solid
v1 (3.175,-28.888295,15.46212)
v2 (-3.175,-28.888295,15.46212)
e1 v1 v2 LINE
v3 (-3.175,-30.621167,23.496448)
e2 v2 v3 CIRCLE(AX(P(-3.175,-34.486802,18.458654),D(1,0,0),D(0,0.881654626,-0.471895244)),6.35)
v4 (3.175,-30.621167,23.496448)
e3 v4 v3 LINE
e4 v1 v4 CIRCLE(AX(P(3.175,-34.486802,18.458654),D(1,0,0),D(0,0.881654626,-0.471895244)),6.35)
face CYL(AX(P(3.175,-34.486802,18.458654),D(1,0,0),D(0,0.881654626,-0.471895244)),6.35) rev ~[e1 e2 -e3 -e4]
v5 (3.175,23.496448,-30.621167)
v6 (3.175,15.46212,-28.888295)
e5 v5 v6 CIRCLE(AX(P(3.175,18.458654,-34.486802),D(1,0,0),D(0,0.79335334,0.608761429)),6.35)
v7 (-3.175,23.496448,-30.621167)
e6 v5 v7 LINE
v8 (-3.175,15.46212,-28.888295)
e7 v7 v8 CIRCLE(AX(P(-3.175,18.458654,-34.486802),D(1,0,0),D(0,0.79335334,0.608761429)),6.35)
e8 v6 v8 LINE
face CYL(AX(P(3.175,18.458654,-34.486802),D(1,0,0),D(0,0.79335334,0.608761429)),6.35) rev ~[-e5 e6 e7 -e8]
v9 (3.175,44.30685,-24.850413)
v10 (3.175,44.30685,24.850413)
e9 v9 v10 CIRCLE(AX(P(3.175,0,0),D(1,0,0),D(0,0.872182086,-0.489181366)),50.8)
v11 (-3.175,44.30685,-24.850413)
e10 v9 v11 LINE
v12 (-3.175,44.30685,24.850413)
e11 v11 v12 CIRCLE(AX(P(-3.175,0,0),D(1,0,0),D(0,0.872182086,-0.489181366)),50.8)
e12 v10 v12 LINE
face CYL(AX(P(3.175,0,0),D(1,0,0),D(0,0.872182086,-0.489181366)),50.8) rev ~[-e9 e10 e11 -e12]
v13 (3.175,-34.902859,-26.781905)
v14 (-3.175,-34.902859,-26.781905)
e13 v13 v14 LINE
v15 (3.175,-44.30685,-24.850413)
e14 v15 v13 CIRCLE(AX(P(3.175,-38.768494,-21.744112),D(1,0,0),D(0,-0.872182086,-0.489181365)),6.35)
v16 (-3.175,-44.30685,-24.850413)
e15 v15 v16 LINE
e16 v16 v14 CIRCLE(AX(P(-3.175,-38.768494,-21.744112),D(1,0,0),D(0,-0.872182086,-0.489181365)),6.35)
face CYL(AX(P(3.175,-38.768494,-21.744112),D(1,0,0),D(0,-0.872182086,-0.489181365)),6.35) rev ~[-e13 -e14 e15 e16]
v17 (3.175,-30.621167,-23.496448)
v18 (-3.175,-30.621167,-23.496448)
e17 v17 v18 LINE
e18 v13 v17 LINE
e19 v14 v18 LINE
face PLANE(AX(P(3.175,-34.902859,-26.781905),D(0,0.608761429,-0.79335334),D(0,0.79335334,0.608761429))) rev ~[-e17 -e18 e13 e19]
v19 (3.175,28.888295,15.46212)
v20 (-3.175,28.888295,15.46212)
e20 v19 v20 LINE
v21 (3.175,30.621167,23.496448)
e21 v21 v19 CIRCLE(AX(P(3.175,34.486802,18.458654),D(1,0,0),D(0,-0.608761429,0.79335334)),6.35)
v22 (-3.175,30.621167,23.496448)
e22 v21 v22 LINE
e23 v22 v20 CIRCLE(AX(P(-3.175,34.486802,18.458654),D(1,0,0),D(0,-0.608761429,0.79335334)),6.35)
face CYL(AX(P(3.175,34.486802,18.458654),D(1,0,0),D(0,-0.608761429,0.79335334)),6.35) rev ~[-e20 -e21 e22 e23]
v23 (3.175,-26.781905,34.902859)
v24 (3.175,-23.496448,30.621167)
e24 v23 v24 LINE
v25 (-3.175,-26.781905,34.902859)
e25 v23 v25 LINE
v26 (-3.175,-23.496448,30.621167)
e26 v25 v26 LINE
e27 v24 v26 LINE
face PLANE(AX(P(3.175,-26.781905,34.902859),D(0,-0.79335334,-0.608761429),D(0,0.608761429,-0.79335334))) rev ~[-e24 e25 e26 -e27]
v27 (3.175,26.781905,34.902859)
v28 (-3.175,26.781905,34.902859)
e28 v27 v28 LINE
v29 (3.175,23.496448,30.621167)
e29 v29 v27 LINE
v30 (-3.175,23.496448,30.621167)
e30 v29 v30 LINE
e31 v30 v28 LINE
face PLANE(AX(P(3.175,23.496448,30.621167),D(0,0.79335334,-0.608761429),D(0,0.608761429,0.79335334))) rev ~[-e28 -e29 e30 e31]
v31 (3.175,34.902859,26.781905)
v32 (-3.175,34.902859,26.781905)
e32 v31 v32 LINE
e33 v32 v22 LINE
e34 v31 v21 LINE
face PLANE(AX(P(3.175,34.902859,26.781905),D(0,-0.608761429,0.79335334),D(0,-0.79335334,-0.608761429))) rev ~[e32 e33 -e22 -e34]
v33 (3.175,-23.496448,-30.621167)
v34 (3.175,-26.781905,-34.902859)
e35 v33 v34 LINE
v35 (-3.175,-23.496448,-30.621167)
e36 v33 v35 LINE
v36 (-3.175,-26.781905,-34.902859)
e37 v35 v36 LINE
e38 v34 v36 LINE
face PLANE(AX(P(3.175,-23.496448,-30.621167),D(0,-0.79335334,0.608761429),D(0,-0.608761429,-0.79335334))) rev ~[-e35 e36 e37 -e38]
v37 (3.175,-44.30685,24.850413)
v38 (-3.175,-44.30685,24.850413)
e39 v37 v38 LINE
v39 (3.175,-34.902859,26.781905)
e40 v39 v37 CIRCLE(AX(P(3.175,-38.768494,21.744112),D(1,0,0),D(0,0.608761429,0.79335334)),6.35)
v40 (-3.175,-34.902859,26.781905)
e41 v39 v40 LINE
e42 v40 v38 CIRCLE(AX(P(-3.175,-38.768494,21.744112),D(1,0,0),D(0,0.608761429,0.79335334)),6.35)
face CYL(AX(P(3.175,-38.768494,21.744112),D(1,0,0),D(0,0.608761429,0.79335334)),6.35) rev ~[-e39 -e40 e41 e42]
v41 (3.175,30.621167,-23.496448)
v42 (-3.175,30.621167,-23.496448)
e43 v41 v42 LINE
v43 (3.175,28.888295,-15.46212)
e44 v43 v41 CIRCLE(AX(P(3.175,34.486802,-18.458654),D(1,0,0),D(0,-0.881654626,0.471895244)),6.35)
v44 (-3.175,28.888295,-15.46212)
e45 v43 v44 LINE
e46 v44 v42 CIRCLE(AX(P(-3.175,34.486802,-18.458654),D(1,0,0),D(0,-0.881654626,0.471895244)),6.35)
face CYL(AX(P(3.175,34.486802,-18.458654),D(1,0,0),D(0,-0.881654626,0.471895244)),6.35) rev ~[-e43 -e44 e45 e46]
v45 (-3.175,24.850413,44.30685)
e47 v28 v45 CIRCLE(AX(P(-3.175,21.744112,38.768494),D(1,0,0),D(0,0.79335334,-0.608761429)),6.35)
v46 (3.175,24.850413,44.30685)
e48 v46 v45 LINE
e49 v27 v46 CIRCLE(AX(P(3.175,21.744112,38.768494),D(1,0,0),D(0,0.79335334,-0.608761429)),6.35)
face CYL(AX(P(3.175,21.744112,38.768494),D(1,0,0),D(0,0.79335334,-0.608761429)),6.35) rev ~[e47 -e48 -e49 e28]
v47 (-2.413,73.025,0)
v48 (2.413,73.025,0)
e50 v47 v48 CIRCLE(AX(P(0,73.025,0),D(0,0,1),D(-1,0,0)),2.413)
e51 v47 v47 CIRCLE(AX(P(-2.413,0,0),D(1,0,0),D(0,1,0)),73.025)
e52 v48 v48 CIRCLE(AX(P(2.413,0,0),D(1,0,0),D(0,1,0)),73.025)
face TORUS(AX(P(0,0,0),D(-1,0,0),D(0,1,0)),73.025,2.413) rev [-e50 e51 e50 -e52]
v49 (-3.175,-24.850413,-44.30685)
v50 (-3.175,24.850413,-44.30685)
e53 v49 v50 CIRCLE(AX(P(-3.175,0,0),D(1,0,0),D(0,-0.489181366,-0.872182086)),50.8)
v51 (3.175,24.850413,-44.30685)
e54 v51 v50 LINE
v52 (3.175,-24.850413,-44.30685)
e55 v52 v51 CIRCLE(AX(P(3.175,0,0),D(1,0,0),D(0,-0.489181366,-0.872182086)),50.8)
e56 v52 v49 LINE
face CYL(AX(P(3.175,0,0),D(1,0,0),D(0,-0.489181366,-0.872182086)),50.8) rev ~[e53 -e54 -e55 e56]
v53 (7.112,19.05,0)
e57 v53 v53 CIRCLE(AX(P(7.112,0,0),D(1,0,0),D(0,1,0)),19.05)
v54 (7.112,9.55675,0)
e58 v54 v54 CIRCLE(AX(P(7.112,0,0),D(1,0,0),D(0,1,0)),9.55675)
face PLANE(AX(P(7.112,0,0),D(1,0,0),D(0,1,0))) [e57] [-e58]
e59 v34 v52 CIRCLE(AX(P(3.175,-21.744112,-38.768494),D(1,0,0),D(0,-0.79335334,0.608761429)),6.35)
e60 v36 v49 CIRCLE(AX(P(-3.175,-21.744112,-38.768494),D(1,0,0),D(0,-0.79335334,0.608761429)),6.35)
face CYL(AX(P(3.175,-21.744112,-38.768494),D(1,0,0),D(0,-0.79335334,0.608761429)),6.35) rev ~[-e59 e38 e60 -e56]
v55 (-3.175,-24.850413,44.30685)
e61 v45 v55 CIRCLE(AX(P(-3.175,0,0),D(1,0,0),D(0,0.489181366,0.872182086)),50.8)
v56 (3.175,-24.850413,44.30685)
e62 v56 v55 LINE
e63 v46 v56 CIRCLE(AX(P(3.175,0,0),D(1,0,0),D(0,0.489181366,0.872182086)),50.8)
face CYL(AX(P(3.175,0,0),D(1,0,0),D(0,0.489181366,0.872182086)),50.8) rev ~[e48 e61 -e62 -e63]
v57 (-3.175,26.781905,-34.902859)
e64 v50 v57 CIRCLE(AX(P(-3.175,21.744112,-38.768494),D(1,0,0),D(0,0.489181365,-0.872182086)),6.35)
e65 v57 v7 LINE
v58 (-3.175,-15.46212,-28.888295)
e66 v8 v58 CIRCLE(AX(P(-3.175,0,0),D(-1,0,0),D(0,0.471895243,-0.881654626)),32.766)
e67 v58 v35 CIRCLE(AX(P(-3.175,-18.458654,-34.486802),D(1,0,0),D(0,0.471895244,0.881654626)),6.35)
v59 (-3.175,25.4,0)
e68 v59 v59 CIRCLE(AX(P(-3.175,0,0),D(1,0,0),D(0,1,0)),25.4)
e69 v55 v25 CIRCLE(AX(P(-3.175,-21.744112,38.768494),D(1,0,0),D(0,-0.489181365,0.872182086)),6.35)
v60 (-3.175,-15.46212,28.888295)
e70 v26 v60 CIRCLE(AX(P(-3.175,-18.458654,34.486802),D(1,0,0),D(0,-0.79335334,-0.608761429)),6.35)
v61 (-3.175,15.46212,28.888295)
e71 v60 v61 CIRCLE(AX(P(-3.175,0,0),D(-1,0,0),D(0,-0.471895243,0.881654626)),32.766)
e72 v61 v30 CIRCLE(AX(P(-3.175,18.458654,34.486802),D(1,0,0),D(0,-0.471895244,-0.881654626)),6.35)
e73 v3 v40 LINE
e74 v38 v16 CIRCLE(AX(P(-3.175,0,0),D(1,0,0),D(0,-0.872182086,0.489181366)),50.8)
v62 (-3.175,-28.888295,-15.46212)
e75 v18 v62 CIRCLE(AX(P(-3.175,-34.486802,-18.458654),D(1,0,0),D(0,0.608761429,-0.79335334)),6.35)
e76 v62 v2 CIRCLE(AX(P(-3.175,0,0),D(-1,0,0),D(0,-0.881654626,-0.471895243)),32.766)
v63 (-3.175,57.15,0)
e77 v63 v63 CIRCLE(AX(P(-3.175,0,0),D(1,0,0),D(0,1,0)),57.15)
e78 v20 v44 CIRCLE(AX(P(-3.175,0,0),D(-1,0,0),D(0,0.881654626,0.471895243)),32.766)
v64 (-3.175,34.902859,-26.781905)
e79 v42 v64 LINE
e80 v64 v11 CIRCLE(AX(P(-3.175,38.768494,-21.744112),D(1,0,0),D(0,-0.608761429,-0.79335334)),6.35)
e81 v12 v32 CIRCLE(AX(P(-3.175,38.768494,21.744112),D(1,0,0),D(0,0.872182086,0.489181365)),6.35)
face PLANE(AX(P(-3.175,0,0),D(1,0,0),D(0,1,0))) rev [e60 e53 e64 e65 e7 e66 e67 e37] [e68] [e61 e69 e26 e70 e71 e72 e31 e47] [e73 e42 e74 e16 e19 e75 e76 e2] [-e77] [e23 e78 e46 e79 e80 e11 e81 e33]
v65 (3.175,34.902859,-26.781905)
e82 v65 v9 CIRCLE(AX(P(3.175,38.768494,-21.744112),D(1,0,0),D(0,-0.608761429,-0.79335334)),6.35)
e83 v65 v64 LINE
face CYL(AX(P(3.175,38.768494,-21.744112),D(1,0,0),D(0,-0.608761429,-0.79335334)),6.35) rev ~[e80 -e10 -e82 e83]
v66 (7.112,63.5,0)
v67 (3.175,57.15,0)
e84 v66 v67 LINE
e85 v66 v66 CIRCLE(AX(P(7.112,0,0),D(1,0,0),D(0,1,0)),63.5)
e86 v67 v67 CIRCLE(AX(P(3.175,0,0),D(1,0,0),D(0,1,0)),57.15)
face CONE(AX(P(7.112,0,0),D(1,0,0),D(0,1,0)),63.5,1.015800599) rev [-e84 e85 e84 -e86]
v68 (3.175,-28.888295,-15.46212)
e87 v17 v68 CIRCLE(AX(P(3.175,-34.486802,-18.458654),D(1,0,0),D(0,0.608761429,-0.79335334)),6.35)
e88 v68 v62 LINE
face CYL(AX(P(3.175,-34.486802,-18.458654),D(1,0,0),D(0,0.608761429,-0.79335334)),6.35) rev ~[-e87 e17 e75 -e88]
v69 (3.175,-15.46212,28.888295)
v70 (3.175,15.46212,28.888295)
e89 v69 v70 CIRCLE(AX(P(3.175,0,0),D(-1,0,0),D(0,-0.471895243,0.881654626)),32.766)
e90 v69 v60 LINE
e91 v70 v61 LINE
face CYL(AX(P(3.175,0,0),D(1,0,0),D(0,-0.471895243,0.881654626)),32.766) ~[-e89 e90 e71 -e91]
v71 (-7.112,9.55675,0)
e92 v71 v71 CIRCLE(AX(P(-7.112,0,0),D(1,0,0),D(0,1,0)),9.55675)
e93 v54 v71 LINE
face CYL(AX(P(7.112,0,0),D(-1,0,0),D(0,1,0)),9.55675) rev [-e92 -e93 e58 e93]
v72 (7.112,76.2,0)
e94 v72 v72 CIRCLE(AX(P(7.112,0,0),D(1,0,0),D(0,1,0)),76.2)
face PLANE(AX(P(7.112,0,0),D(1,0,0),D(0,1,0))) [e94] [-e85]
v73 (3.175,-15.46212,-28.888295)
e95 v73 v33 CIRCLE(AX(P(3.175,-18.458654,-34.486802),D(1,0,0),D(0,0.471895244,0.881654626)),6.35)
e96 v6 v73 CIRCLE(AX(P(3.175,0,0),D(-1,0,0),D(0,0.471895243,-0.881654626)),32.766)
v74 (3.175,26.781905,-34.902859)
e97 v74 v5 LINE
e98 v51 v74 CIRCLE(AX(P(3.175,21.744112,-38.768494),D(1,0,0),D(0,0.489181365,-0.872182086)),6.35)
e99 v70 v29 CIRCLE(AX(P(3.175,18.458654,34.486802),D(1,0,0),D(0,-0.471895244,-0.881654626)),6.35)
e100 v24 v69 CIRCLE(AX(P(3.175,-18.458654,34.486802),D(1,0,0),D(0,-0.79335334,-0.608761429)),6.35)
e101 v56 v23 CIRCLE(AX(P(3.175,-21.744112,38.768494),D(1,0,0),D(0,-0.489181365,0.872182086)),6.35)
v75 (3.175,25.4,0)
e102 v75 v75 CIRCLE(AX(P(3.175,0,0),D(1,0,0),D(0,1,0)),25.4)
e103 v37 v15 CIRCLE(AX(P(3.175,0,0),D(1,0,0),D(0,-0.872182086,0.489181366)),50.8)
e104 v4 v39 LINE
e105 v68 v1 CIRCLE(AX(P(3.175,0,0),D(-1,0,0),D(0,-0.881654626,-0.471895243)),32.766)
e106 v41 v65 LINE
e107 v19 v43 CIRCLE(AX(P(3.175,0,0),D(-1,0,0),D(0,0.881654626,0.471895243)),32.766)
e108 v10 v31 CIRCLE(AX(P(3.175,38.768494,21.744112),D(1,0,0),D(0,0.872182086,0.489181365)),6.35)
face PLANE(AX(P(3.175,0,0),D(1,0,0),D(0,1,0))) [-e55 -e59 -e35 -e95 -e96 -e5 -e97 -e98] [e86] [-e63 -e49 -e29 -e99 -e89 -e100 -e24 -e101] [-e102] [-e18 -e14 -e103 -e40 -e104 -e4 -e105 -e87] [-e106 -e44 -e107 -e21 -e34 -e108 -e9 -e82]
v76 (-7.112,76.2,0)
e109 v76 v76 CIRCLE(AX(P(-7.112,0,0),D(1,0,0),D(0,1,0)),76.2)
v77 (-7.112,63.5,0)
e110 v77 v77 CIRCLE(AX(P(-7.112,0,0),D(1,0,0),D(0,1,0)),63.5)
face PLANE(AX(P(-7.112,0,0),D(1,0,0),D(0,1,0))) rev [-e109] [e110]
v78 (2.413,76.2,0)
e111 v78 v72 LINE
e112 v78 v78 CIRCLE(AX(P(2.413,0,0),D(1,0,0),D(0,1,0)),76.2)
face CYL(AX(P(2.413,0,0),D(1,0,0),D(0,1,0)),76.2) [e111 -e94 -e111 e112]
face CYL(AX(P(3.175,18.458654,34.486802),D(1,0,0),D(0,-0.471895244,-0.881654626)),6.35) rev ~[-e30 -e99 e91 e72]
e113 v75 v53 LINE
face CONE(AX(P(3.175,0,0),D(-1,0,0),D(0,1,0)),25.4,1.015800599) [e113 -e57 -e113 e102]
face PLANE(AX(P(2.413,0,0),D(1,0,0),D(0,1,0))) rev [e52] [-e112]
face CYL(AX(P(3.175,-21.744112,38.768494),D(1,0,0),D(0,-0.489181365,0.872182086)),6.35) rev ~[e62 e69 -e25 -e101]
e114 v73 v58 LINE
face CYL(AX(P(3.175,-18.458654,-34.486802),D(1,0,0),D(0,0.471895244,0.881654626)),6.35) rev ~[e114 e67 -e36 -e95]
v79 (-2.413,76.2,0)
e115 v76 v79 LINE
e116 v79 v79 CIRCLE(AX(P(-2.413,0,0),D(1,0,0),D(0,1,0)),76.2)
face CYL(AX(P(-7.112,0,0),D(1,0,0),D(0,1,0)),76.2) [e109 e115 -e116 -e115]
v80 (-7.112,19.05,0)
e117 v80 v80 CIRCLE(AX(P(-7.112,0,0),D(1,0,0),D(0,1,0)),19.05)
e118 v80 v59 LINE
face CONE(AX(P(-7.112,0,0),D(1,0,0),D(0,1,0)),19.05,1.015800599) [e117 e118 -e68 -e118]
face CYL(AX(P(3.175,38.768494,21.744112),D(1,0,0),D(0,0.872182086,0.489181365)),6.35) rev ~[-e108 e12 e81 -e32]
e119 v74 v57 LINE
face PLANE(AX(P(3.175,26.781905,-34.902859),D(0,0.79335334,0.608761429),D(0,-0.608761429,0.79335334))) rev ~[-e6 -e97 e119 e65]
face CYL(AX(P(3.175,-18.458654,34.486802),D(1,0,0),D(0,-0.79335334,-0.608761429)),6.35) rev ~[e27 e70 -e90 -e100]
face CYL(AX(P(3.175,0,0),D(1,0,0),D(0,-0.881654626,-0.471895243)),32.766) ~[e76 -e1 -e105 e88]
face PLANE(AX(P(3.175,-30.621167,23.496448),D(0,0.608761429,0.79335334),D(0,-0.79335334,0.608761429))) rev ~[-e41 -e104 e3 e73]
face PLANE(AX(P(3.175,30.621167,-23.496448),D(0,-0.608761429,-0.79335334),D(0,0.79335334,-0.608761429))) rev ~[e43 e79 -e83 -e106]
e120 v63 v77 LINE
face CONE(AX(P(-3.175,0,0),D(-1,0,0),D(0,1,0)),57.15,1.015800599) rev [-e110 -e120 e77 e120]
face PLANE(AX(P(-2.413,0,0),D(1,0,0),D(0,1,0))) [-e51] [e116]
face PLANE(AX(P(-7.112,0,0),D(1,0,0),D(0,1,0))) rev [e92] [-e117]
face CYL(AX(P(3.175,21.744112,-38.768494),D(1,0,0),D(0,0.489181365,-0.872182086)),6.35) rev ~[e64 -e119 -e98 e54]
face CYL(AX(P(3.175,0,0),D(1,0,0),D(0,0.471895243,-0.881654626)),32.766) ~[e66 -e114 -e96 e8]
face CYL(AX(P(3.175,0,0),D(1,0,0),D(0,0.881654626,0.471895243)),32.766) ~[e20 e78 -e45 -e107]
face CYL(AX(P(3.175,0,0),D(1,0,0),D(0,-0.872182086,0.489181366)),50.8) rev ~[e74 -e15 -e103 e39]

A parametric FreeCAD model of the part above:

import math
import FreeCAD as App
import Part
import Sketcher

V = App.Vector
Q = App.Units.Quantity

doc = App.newDocument("Part")
body = doc.addObject("PartDesign::Body", "Body")

sketch1 = body.newObject("Sketcher::SketchObject", "Sketch")
sketch1.AttachmentSupport = (doc.getObject("XY_Plane"), [""])
sketch1.MapMode = "FlatFace"
sketch1.addGeometry([
    Part.LineSegment(V(-3.2, 25.4, 0), V(-7.1, 19.1, 0)),
    Part.LineSegment(V(-7.1, 19.1, 0), V(-7.1, 9.6, 0)),
    Part.LineSegment(V(-7.1, 9.6, 0), V(7.1, 9.6, 0)),
    Part.LineSegment(V(7.1, 9.6, 0), V(7.1, 19.1, 0)),
    Part.LineSegment(V(7.1, 19.1, 0), V(3.2, 25.4, 0)),
    Part.LineSegment(V(3.2, 25.4, 0), V(3.2, 57.1, 0)),
    Part.LineSegment(V(3.2, 57.1, 0), V(7.1, 63.5, 0)),
    Part.LineSegment(V(7.1, 63.5, 0), V(7.1, 76.2, 0)),
    Part.LineSegment(V(7.1, 76.2, 0), V(2.4, 76.2, 0)),
    Part.LineSegment(V(2.4, 76.2, 0), V(2.4, 73, 0)),
    Part.ArcOfCircle(Part.Circle(V(0, 73, 0), V(0, 0, 1), 2.4), math.radians(180), math.radians(360)),
    Part.LineSegment(V(-2.4, 73, 0), V(-2.4, 76.2, 0)),
    Part.LineSegment(V(-2.4, 76.2, 0), V(-7.1, 76.2, 0)),
    Part.LineSegment(V(-7.1, 76.2, 0), V(-7.1, 63.5, 0)),
    Part.LineSegment(V(-7.1, 63.5, 0), V(-3.2, 57.1, 0)),
    Part.LineSegment(V(-3.2, 57.1, 0), V(-3.2, 25.4, 0)),
], False)
sketch1.addConstraint([
    Sketcher.Constraint("Coincident", 0, 2, 1, 1),
    Sketcher.Constraint("Coincident", 1, 2, 2, 1),
    Sketcher.Constraint("Coincident", 2, 2, 3, 1),
    Sketcher.Constraint("Coincident", 3, 2, 4, 1),
    Sketcher.Constraint("Coincident", 4, 2, 5, 1),
    Sketcher.Constraint("Coincident", 5, 2, 6, 1),
    Sketcher.Constraint("Coincident", 6, 2, 7, 1),
    Sketcher.Constraint("Coincident", 7, 2, 8, 1),
    Sketcher.Constraint("Coincident", 8, 2, 9, 1),
    Sketcher.Constraint("Tangent", 9, 2, 10, 2),
    Sketcher.Constraint("Tangent", 10, 1, 11, 1),
    Sketcher.Constraint("Coincident", 11, 2, 12, 1),
    Sketcher.Constraint("Coincident", 12, 2, 13, 1),
    Sketcher.Constraint("Coincident", 13, 2, 14, 1),
    Sketcher.Constraint("Coincident", 14, 2, 15, 1),
    Sketcher.Constraint("Coincident", 15, 2, 0, 1),
    Sketcher.Constraint("Vertical", 1),
    Sketcher.Constraint("Horizontal", 2),
    Sketcher.Constraint("Vertical", 3),
    Sketcher.Constraint("Vertical", 5),
    Sketcher.Constraint("Vertical", 7),
    Sketcher.Constraint("Horizontal", 8),
    Sketcher.Constraint("Vertical", 9),
    Sketcher.Constraint("Vertical", 11),
    Sketcher.Constraint("Horizontal", 12),
    Sketcher.Constraint("Vertical", 13),
    Sketcher.Constraint("Vertical", 15),
    Sketcher.Constraint("Symmetric", 0, 2, 3, 2, -2),
    Sketcher.Constraint("Symmetric", 8, 2, 11, 2, -2),
    Sketcher.Constraint("Symmetric", 6, 2, 13, 2, -2),
    Sketcher.Constraint("Symmetric", 5, 2, 14, 2, -2),
    Sketcher.Constraint("Parallel", 0, 6),
    Sketcher.Constraint("Parallel", 4, 14),
    Sketcher.Constraint("Vertical", 3, 2, 6, 2),
    Sketcher.Constraint("DistanceY", 7, 1, 7, 2, Q("0.5 in")),
    Sketcher.Constraint("DistanceY", -1, 1, 4, 2, Q("1 in")),
    Sketcher.Constraint("DistanceY", -1, 1, 7, 2, Q("3 in")),
    Sketcher.Constraint("Radius", 10, Q("0.095 in")),
    Sketcher.Constraint("DistanceX", 2, 1, 2, 2, Q("0.56 in")),
    Sketcher.Constraint("DistanceY", 5, 1, 5, 2, Q("1.25 in")),
    Sketcher.Constraint("DistanceY", 9, 2, 9, 1, Q("0.125 in")),
    Sketcher.Constraint("DistanceX", 8, 2, 5, 2, Q("0.03 in")),
    Sketcher.Constraint("DistanceY", 1, 2, 1, 1, 9.49325),
])
revolution = body.newObject("PartDesign::Revolution", "Revolution")
revolution.Profile = sketch1
revolution.ReferenceAxis = (sketch1, ["H_Axis"])
revolution.Angle = 360

sketch2 = body.newObject("Sketcher::SketchObject", "Sketch001")
sketch2.AttachmentSupport = (doc.getObject("YZ_Plane"), [""])
sketch2.MapMode = "FlatFace"
sketch2.AttachmentOffset = App.Placement(V(0, 0, 0.125 * 25.4), App.Rotation())
sketch2.addGeometry([
    Part.LineSegment(V(31, -23, 0), V(35, -27, 0)),
    Part.ArcOfCircle(Part.Circle(V(39, -22, 0), V(0, 0, 1), 6), math.radians(-128), math.radians(-29)),
    Part.ArcOfCircle(Part.Circle(V(0, 0, 0), V(0, 0, 1), 51), math.radians(-29), math.radians(29)),
    Part.ArcOfCircle(Part.Circle(V(39, 22, 0), V(0, 0, 1), 6), math.radians(29), math.radians(128)),
    Part.LineSegment(V(35, 27, 0), V(31, 23, 0)),
    Part.ArcOfCircle(Part.Circle(V(34, 18, 0), V(0, 0, 1), 6), math.radians(127), math.radians(208)),
    Part.ArcOfCircle(Part.Circle(V(0, 0, 0), V(0, 0, 1), 33), math.radians(-28), math.radians(28)),
    Part.ArcOfCircle(Part.Circle(V(34, -18, 0), V(0, 0, 1), 6), math.radians(152), math.radians(233)),
], False)
sketch2.addConstraint([
    Sketcher.Constraint("Tangent", 0, 2, 1, 1),
    Sketcher.Constraint("Tangent", 1, 2, 2, 1),
    Sketcher.Constraint("Tangent", 2, 2, 3, 1),
    Sketcher.Constraint("Tangent", 3, 2, 4, 1),
    Sketcher.Constraint("Tangent", 4, 2, 5, 1),
    Sketcher.Constraint("Tangent", 5, 2, 6, 2),
    Sketcher.Constraint("Tangent", 6, 1, 7, 1),
    Sketcher.Constraint("Tangent", 7, 2, 0, 1),
    Sketcher.Constraint("Coincident", 2, 3, -1, 1),
    Sketcher.Constraint("Coincident", 6, 3, -1, 1),
    Sketcher.Constraint("Equal", 1, 3),
    Sketcher.Constraint("Equal", 3, 5),
    Sketcher.Constraint("Equal", 5, 7),
    Sketcher.Constraint("Symmetric", 0, 2, 3, 2, -1),
    Sketcher.Constraint("Radius", 2, Q("2 in")),
    Sketcher.Constraint("Radius", 1, Q("0.25 in")),
    Sketcher.Constraint("Radius", 6, Q("1.29 in")),
    Sketcher.Constraint("Angle", 0, Q("-37.5 deg")),
    Sketcher.Constraint("DistanceY", 1, 2, 1, 3, 3.106302),
])
pocket1 = body.newObject("PartDesign::Pocket", "Pocket")
pocket1.Profile = sketch2
pocket1.Length = Q("0.25 in")
doc.recompute()

polarpattern = body.newObject("PartDesign::PolarPattern", "PolarPattern")
polarpattern.Originals = [pocket1]
polarpattern.Axis = (doc.getObject("X_Axis"), [""])
polarpattern.Angle = 360
polarpattern.Occurrences = 4
body.Tip = polarpattern

doc.recompute()
